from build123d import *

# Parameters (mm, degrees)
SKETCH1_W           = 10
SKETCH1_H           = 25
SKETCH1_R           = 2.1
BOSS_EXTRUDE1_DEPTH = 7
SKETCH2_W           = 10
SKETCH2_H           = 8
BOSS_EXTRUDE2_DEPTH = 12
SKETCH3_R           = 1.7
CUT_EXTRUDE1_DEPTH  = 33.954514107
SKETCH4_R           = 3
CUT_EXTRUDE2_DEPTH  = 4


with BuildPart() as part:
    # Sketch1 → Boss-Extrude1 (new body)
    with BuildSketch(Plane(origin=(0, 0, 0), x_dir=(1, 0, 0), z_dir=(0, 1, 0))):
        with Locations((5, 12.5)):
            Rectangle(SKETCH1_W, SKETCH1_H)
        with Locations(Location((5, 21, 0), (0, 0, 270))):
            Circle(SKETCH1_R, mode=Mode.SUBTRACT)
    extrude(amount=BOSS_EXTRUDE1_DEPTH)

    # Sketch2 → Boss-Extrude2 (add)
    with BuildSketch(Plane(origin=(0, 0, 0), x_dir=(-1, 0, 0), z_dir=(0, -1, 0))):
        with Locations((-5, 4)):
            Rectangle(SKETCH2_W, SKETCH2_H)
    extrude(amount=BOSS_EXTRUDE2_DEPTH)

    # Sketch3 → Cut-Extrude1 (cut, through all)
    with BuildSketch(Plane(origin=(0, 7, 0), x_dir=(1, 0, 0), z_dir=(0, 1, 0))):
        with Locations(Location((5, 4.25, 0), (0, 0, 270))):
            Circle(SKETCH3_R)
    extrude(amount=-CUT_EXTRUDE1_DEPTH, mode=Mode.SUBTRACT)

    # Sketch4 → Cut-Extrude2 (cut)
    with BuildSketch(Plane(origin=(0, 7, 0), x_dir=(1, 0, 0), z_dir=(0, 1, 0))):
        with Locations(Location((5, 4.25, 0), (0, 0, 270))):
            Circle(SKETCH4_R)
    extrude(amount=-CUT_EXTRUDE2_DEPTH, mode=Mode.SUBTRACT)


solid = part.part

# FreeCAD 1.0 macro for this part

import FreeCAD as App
import Part
import Sketcher

doc = App.newDocument("Part")
body = doc.addObject("PartDesign::Body", "Body")

sketch1 = body.newObject("Sketcher::SketchObject", "Sketch")
sketch1.AttachmentSupport = (doc.getObject("XZ_Plane"), [""])
sketch1.MapMode = "FlatFace"
sketch1.addGeometry([
    Part.LineSegment(App.Vector(0, -25, 0), App.Vector(0, 0, 0)),
    Part.LineSegment(App.Vector(0, 0, 0), App.Vector(10, 0, 0)),
    Part.LineSegment(App.Vector(10, 0, 0), App.Vector(10, -25, 0)),
    Part.LineSegment(App.Vector(10, -25, 0), App.Vector(0, -25, 0)),
    Part.Circle(App.Vector(5, -21, 0), App.Vector(0, 0, 1), 2.1),
], False)
sketch1.addConstraint([
    Sketcher.Constraint("Coincident", 0, 2, 1, 1),
    Sketcher.Constraint("Coincident", 1, 2, 2, 1),
    Sketcher.Constraint("Coincident", 2, 2, 3, 1),
    Sketcher.Constraint("Coincident", 3, 2, 0, 1),
    Sketcher.Constraint("Vertical", 0),
    Sketcher.Constraint("Horizontal", 1),
    Sketcher.Constraint("Vertical", 2),
    Sketcher.Constraint("Horizontal", 3),
    Sketcher.Constraint("Coincident", 0, 2, -1, 1),
    Sketcher.Constraint("Diameter", 4, 4.2),
    Sketcher.Constraint("DistanceX", 1, 1, 1, 2, 10.0),
    Sketcher.Constraint("DistanceY", 0, 1, 0, 2, 25.0),
    Sketcher.Constraint("DistanceX", -1, 1, 4, 3, 5.0),
    Sketcher.Constraint("DistanceY", 4, 3, -1, 1, 21.0),
])
pad1 = body.newObject("PartDesign::Pad", "Pad")
pad1.Profile = sketch1
pad1.Length = 7
pad1.Reversed = True

sketch2 = body.newObject("Sketcher::SketchObject", "Sketch001")
sketch2.AttachmentSupport = (doc.getObject("XZ_Plane"), [""])
sketch2.MapMode = "FlatFace"
sketch2.addGeometry([
    Part.LineSegment(App.Vector(10, -8, 0), App.Vector(10, 0, 0)),
    Part.LineSegment(App.Vector(10, 0, 0), App.Vector(0, 0, 0)),
    Part.LineSegment(App.Vector(0, 0, 0), App.Vector(0, -8, 0)),
    Part.LineSegment(App.Vector(0, -8, 0), App.Vector(10, -8, 0)),
], False)
sketch2.addConstraint([
    Sketcher.Constraint("Coincident", 0, 2, 1, 1),
    Sketcher.Constraint("Coincident", 1, 2, 2, 1),
    Sketcher.Constraint("Coincident", 2, 2, 3, 1),
    Sketcher.Constraint("Coincident", 3, 2, 0, 1),
    Sketcher.Constraint("Vertical", 0),
    Sketcher.Constraint("Horizontal", 1),
    Sketcher.Constraint("Vertical", 2),
    Sketcher.Constraint("Horizontal", 3),
    Sketcher.Constraint("Coincident", 1, 2, -1, 1),
    Sketcher.Constraint("DistanceX", 1, 2, 1, 1, 10.0),
    Sketcher.Constraint("DistanceY", 0, 1, 0, 2, 8.0),
])
pad2 = body.newObject("PartDesign::Pad", "Pad001")
pad2.Profile = sketch2
pad2.Length = 12

sketch3 = body.newObject("Sketcher::SketchObject", "Sketch002")
sketch3.AttachmentSupport = (doc.getObject("XZ_Plane"), [""])
sketch3.MapMode = "FlatFace"
sketch3.AttachmentOffset = App.Placement(App.Vector(0, 0, -7), App.Rotation())
sketch3.addGeometry(Part.Circle(App.Vector(5, -4.2, 0), App.Vector(0, 0, 1), 1.7), False)
sketch3.addConstraint([
    Sketcher.Constraint("Diameter", 0, 3.4),
    Sketcher.Constraint("DistanceX", -1, 1, 0, 3, 5.0),
    Sketcher.Constraint("DistanceY", 0, 3, -1, 1, 4.25),
])
pocket1 = body.newObject("PartDesign::Pocket", "Pocket")
pocket1.Profile = sketch3
pocket1.Type = "ThroughAll"
pocket1.Reversed = True

sketch4 = body.newObject("Sketcher::SketchObject", "Sketch003")
sketch4.AttachmentSupport = (doc.getObject("XZ_Plane"), [""])
sketch4.MapMode = "FlatFace"
sketch4.AttachmentOffset = App.Placement(App.Vector(0, 0, -7), App.Rotation())
sketch4.addGeometry(Part.Circle(App.Vector(5, -4.2, 0), App.Vector(0, 0, 1), 3), False)
sketch4.addConstraint([
    Sketcher.Constraint("Diameter", 0, 6.0),
    Sketcher.Constraint("DistanceX", -1, 1, 0, 3, 5.0),
    Sketcher.Constraint("DistanceY", 0, 3, -1, 1, 4.25),
])
pocket2 = body.newObject("PartDesign::Pocket", "Pocket001")
pocket2.Profile = sketch4
pocket2.Length = 4
pocket2.Reversed = True

doc.recompute()
